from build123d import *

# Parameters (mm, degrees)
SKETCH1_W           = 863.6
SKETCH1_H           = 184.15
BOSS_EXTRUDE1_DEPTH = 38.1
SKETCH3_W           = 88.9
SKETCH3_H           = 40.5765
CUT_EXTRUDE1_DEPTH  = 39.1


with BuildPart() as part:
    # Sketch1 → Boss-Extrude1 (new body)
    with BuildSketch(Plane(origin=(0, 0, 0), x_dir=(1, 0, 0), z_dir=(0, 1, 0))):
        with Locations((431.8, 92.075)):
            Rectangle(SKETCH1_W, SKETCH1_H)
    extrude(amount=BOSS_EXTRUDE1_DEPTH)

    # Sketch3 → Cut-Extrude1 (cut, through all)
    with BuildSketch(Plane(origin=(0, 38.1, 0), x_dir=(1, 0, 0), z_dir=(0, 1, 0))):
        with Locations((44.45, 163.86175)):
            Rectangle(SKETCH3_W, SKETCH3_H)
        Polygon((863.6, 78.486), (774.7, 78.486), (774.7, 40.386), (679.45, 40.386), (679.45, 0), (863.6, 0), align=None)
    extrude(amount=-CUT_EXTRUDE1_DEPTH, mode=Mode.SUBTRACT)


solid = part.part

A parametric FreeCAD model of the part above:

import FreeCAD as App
import Part
import Sketcher

V = App.Vector
Q = App.Units.Quantity


def add_polygon(sketch, points):
    """Adds a closed chain of lines whose ends are joined by coincident constraints."""
    first, n = sketch.GeometryCount, len(points)
    for a, b in zip(points, points[1:] + points[:1]):
        sketch.addGeometry(Part.LineSegment(App.Vector(*a, 0), App.Vector(*b, 0)), False)
    for i in range(n):
        sketch.addConstraint(Sketcher.Constraint("Coincident", first + i, 2, first + (i + 1) % n, 1))

doc = App.newDocument("Part")
params = doc.addObject("Spreadsheet::Sheet", "Params")
for row, (alias, value) in enumerate([
    ("sketch1_width", "34 in"),
    ("sketch1_height", "7.25 in"),
    ("pad1_length", "1.5 in"),
    ("sketch2_width", "3.5 in"),
    ("sketch2_height", "1.5 in"),
    ("sketch2_width2", "3.75 in"),
    ("sketch2_height2", "1.59 in"),
], start=1):
    params.set(f"A{row}", alias)
    params.set(f"B{row}", "=" + value)
    params.setAlias(f"B{row}", alias)

body = doc.addObject("PartDesign::Body", "Body")

sketch1 = body.newObject("Sketcher::SketchObject", "Sketch")
sketch1.AttachmentSupport = (doc.getObject("XZ_Plane"), [""])
sketch1.MapMode = "FlatFace"
add_polygon(sketch1, [(0, -184), (0, 0), (864, 0), (864, -184)])
sketch1.addConstraint([
    Sketcher.Constraint("Vertical", 0),
    Sketcher.Constraint("Horizontal", 1),
    Sketcher.Constraint("Vertical", 2),
    Sketcher.Constraint("Horizontal", 3),
    Sketcher.Constraint("Coincident", 0, 2, -1, 1),
    Sketcher.Constraint("DistanceX", 1, 1, 1, 2, Q("34 in")),
    Sketcher.Constraint("DistanceY", 0, 1, 0, 2, Q("7.25 in")),
])
sketch1.setExpression("Constraints[9]", "Params.sketch1_width")
sketch1.setExpression("Constraints[10]", "Params.sketch1_height")
pad1 = body.newObject("PartDesign::Pad", "Pad")
pad1.Profile = sketch1
pad1.setExpression("Length", "Params.pad1_length")
pad1.Reversed = True

sketch2 = body.newObject("Sketcher::SketchObject", "Sketch001")
sketch2.AttachmentSupport = (doc.getObject("XZ_Plane"), [""])
sketch2.MapMode = "FlatFace"
sketch2.AttachmentOffset = App.Placement(V(0, 0, -1.5 * 25.4), App.Rotation())
add_polygon(sketch2, [(0, -184), (0, -144), (89, -144), (89, -184)])
add_polygon(sketch2, [(864, -78), (775, -78), (775, -40), (679, -40), (679, 0), (864, 0)])
sketch2.addConstraint([
    Sketcher.Constraint("Vertical", 0),
    Sketcher.Constraint("Horizontal", 1),
    Sketcher.Constraint("Vertical", 2),
    Sketcher.Constraint("Horizontal", 3),
    Sketcher.Constraint("Horizontal", 4),
    Sketcher.Constraint("Vertical", 5),
    Sketcher.Constraint("Horizontal", 6),
    Sketcher.Constraint("Vertical", 7),
    Sketcher.Constraint("Horizontal", 8),
    Sketcher.Constraint("Vertical", 9),
    Sketcher.Constraint("PointOnObject", 0, 2, -2),
    Sketcher.Constraint("PointOnObject", 7, 2, -1),
    Sketcher.Constraint("Equal", 3, 4),
    Sketcher.Constraint("DistanceX", 1, 1, 1, 2, Q("3.5 in")),
    Sketcher.Constraint("DistanceY", 5, 1, 5, 2, Q("1.5 in")),
    Sketcher.Constraint("DistanceX", -1, 1, 8, 2, Q("34 in")),
    Sketcher.Constraint("DistanceX", 6, 2, 6, 1, Q("3.75 in")),
    Sketcher.Constraint("DistanceY", 7, 1, 7, 2, Q("1.59 in")),
    Sketcher.Constraint("DistanceY", 2, 2, -1, 1, Q("7.25 in")),
    Sketcher.Constraint("DistanceY", 0, 1, 0, 2, Q("1.5975 in")),
])
sketch2.setExpression("Constraints[23]", "Params.sketch2_width")
sketch2.setExpression("Constraints[24]", "Params.sketch2_height")
sketch2.setExpression("Constraints[26]", "Params.sketch2_width2")
sketch2.setExpression("Constraints[27]", "Params.sketch2_height2")
pocket1 = body.newObject("PartDesign::Pocket", "Pocket")
pocket1.Profile = sketch2
pocket1.Type = "ThroughAll"
pocket1.Reversed = True

doc.recompute()
